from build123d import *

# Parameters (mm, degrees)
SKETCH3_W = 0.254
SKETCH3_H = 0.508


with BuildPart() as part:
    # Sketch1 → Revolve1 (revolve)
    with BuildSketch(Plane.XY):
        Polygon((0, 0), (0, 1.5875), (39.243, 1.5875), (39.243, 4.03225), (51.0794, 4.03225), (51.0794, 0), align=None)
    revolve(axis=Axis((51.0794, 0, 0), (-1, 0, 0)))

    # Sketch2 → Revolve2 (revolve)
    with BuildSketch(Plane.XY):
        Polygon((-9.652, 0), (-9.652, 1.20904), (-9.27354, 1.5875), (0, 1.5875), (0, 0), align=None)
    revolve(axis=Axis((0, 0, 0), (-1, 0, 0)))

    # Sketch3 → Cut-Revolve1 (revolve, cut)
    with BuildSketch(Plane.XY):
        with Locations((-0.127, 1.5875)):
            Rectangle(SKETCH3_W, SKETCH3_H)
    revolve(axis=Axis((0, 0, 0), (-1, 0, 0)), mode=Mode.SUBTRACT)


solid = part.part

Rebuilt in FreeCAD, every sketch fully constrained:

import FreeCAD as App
import Part
import Sketcher
from FreeCAD import Vector
Q = App.Units.Quantity

doc = App.newDocument("Part")
body = doc.addObject("PartDesign::Body", "Body")

# Sketch on XY plane
sketch1 = body.newObject("Sketcher::SketchObject", "Sketch")
sketch1.AttachmentSupport = (doc.getObject("XY_Plane"), [""])
sketch1.MapMode = "FlatFace"
sketch1.addGeometry([
    Part.LineSegment(Vector(0, 1.6, 0), Vector(0, 0, 0)),  # 0
    Part.LineSegment(Vector(0, 0, 0), Vector(51.1, 0, 0)),  # 1
    Part.LineSegment(Vector(51.1, 0, 0), Vector(51.1, 4, 0)),  # 2
    Part.LineSegment(Vector(51.1, 4, 0), Vector(39.2, 4, 0)),  # 3
    Part.LineSegment(Vector(39.2, 4, 0), Vector(39.2, 1.6, 0)),  # 4
    Part.LineSegment(Vector(39.2, 1.6, 0), Vector(0, 1.6, 0)),  # 5
], False)
sketch1.addConstraint([
    Sketcher.Constraint("Coincident", 0, 2, 1, 1),
    Sketcher.Constraint("Coincident", 1, 2, 2, 1),
    Sketcher.Constraint("Coincident", 2, 2, 3, 1),
    Sketcher.Constraint("Coincident", 3, 2, 4, 1),
    Sketcher.Constraint("Coincident", 4, 2, 5, 1),
    Sketcher.Constraint("Coincident", 5, 2, 0, 1),
    Sketcher.Constraint("Vertical", 0),
    Sketcher.Constraint("Horizontal", 1),
    Sketcher.Constraint("Vertical", 2),
    Sketcher.Constraint("Horizontal", 3),
    Sketcher.Constraint("Vertical", 4),
    Sketcher.Constraint("Horizontal", 5),
    Sketcher.Constraint("Coincident", 0, 2, -1, 1),
    Sketcher.Constraint("DistanceX", 1, 1, 1, 2, Q("2.011 in")),
    Sketcher.Constraint("DistanceX", 3, 2, 3, 1, Q("0.466 in")),
    Sketcher.Constraint("DistanceY", 0, 2, 0, 1, Q("0.0625 in")),
    Sketcher.Constraint("DistanceY", 2, 1, 2, 2, 4.03225),
])
revolution = body.newObject("PartDesign::Revolution", "Revolution")
revolution.Profile = sketch1
revolution.ReferenceAxis = (sketch1, ["H_Axis"])
revolution.Angle = 360

# Sketch on XY plane
sketch2 = body.newObject("Sketcher::SketchObject", "Sketch001")
sketch2.AttachmentSupport = (doc.getObject("XY_Plane"), [""])
sketch2.MapMode = "FlatFace"
sketch2.addGeometry([
    Part.LineSegment(Vector(-9.7, 1.2, 0), Vector(-9.7, 0, 0)),  # 0
    Part.LineSegment(Vector(-9.7, 0, 0), Vector(0, 0, 0)),  # 1
    Part.LineSegment(Vector(0, 0, 0), Vector(0, 1.6, 0)),  # 2
    Part.LineSegment(Vector(0, 1.6, 0), Vector(-9.3, 1.6, 0)),  # 3
    Part.LineSegment(Vector(-9.3, 1.6, 0), Vector(-9.7, 1.2, 0)),  # 4
], False)
sketch2.addConstraint([
    Sketcher.Constraint("Coincident", 0, 2, 1, 1),
    Sketcher.Constraint("Coincident", 1, 2, 2, 1),
    Sketcher.Constraint("Coincident", 2, 2, 3, 1),
    Sketcher.Constraint("Coincident", 3, 2, 4, 1),
    Sketcher.Constraint("Coincident", 4, 2, 0, 1),
    Sketcher.Constraint("Vertical", 0),
    Sketcher.Constraint("Horizontal", 1),
    Sketcher.Constraint("Vertical", 2),
    Sketcher.Constraint("Horizontal", 3),
    Sketcher.Constraint("Coincident", 1, 2, -1, 1),
    Sketcher.Constraint("Angle", 4, Q("-135 deg")),
    Sketcher.Constraint("DistanceX", 1, 1, 1, 2, Q("0.38 in")),
    Sketcher.Constraint("DistanceY", 2, 1, 2, 2, Q("0.0625 in")),
    Sketcher.Constraint("DistanceX", 3, 2, 3, 1, Q("0.3651 in")),
])
revolution2 = body.newObject("PartDesign::Revolution", "Revolution001")
revolution2.Profile = sketch2
revolution2.ReferenceAxis = (sketch2, ["H_Axis"])
revolution2.Angle = 360

# Sketch on XY plane
sketch3 = body.newObject("Sketcher::SketchObject", "Sketch002")
sketch3.AttachmentSupport = (doc.getObject("XY_Plane"), [""])
sketch3.MapMode = "FlatFace"
sketch3.addGeometry([
    Part.LineSegment(Vector(-0.25, 1.84, 0), Vector(-0.25, 1.33, 0)),
    Part.LineSegment(Vector(-0.25, 1.33, 0), Vector(0, 1.33, 0)),
    Part.LineSegment(Vector(0, 1.33, 0), Vector(0, 1.84, 0)),
    Part.LineSegment(Vector(0, 1.84, 0), Vector(-0.25, 1.84, 0)),
], False)
sketch3.addConstraint([
    Sketcher.Constraint("Coincident", 0, 2, 1, 1),
    Sketcher.Constraint("Coincident", 1, 2, 2, 1),
    Sketcher.Constraint("Coincident", 2, 2, 3, 1),
    Sketcher.Constraint("Coincident", 3, 2, 0, 1),
    Sketcher.Constraint("Vertical", 0),
    Sketcher.Constraint("Horizontal", 1),
    Sketcher.Constraint("Vertical", 2),
    Sketcher.Constraint("Horizontal", 3),
    Sketcher.Constraint("PointOnObject", 1, 2, -2),
    Sketcher.Constraint("DistanceX", 1, 1, 1, 2, Q("0.01 in")),
    Sketcher.Constraint("DistanceY", 0, 2, 0, 1, Q("0.02 in")),
    Sketcher.Constraint("DistanceY", -1, 1, 0, 2, Q("0.0525 in")),
])
groove = body.newObject("PartDesign::Groove", "Groove")
groove.Profile = sketch3
groove.ReferenceAxis = (sketch3, ["H_Axis"])
groove.Angle = 360

doc.recompute()
